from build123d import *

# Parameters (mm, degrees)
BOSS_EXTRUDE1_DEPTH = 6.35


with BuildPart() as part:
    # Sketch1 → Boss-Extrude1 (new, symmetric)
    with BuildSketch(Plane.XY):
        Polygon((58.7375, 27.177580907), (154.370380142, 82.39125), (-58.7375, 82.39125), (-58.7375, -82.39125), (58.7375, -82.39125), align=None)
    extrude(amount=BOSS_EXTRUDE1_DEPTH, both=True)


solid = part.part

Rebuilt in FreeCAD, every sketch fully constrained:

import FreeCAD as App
import Part
import Sketcher
Q = App.Units.Quantity

doc = App.newDocument("Part")
body = doc.addObject("PartDesign::Body", "Body")

# Sketch on XY plane
sketch1 = doc.addObject("Sketcher::SketchObject", "Sketch")
body.addObject(sketch1)
sketch1.AttachmentSupport = (doc.XY_Plane, [""])
sketch1.MapMode = "FlatFace"
sketch1.addGeometry([
    Part.LineSegment(App.Vector(59, 27, 0), App.Vector(154, 82, 0)),  # 0
    Part.LineSegment(App.Vector(154, 82, 0), App.Vector(-59, 82, 0)),  # 1
    Part.LineSegment(App.Vector(-59, 82, 0), App.Vector(-59, -82, 0)),  # 2
    Part.LineSegment(App.Vector(-59, -82, 0), App.Vector(59, -82, 0)),  # 3
    Part.LineSegment(App.Vector(59, -82, 0), App.Vector(59, 27, 0)),  # 4
], False)
sketch1.addConstraint([
    Sketcher.Constraint("Coincident", 0, 2, 1, 1),
    Sketcher.Constraint("Coincident", 1, 2, 2, 1),
    Sketcher.Constraint("Coincident", 2, 2, 3, 1),
    Sketcher.Constraint("Coincident", 3, 2, 4, 1),
    Sketcher.Constraint("Coincident", 4, 2, 0, 1),
    Sketcher.Constraint("Horizontal", 1),
    Sketcher.Constraint("Vertical", 2),
    Sketcher.Constraint("Horizontal", 3),
    Sketcher.Constraint("Vertical", 4),
    Sketcher.Constraint("Symmetric", 1, 2, 3, 2, -1, 1),
    Sketcher.Constraint("Angle", 0, Q("30 deg")),
    Sketcher.Constraint("DistanceX", 3, 1, 3, 2, Q("4.625 in")),
    Sketcher.Constraint("DistanceY", 2, 2, 2, 1, Q("6.4875 in")),
    Sketcher.Constraint("DistanceX", 1, 2, 1, 1, Q("213.10788 mm")),
])
pad1 = doc.addObject("PartDesign::Pad", "Pad")
body.addObject(pad1)
pad1.Profile = sketch1
pad1.Length = Q("0.5 in")
pad1.Midplane = True

doc.recompute()
